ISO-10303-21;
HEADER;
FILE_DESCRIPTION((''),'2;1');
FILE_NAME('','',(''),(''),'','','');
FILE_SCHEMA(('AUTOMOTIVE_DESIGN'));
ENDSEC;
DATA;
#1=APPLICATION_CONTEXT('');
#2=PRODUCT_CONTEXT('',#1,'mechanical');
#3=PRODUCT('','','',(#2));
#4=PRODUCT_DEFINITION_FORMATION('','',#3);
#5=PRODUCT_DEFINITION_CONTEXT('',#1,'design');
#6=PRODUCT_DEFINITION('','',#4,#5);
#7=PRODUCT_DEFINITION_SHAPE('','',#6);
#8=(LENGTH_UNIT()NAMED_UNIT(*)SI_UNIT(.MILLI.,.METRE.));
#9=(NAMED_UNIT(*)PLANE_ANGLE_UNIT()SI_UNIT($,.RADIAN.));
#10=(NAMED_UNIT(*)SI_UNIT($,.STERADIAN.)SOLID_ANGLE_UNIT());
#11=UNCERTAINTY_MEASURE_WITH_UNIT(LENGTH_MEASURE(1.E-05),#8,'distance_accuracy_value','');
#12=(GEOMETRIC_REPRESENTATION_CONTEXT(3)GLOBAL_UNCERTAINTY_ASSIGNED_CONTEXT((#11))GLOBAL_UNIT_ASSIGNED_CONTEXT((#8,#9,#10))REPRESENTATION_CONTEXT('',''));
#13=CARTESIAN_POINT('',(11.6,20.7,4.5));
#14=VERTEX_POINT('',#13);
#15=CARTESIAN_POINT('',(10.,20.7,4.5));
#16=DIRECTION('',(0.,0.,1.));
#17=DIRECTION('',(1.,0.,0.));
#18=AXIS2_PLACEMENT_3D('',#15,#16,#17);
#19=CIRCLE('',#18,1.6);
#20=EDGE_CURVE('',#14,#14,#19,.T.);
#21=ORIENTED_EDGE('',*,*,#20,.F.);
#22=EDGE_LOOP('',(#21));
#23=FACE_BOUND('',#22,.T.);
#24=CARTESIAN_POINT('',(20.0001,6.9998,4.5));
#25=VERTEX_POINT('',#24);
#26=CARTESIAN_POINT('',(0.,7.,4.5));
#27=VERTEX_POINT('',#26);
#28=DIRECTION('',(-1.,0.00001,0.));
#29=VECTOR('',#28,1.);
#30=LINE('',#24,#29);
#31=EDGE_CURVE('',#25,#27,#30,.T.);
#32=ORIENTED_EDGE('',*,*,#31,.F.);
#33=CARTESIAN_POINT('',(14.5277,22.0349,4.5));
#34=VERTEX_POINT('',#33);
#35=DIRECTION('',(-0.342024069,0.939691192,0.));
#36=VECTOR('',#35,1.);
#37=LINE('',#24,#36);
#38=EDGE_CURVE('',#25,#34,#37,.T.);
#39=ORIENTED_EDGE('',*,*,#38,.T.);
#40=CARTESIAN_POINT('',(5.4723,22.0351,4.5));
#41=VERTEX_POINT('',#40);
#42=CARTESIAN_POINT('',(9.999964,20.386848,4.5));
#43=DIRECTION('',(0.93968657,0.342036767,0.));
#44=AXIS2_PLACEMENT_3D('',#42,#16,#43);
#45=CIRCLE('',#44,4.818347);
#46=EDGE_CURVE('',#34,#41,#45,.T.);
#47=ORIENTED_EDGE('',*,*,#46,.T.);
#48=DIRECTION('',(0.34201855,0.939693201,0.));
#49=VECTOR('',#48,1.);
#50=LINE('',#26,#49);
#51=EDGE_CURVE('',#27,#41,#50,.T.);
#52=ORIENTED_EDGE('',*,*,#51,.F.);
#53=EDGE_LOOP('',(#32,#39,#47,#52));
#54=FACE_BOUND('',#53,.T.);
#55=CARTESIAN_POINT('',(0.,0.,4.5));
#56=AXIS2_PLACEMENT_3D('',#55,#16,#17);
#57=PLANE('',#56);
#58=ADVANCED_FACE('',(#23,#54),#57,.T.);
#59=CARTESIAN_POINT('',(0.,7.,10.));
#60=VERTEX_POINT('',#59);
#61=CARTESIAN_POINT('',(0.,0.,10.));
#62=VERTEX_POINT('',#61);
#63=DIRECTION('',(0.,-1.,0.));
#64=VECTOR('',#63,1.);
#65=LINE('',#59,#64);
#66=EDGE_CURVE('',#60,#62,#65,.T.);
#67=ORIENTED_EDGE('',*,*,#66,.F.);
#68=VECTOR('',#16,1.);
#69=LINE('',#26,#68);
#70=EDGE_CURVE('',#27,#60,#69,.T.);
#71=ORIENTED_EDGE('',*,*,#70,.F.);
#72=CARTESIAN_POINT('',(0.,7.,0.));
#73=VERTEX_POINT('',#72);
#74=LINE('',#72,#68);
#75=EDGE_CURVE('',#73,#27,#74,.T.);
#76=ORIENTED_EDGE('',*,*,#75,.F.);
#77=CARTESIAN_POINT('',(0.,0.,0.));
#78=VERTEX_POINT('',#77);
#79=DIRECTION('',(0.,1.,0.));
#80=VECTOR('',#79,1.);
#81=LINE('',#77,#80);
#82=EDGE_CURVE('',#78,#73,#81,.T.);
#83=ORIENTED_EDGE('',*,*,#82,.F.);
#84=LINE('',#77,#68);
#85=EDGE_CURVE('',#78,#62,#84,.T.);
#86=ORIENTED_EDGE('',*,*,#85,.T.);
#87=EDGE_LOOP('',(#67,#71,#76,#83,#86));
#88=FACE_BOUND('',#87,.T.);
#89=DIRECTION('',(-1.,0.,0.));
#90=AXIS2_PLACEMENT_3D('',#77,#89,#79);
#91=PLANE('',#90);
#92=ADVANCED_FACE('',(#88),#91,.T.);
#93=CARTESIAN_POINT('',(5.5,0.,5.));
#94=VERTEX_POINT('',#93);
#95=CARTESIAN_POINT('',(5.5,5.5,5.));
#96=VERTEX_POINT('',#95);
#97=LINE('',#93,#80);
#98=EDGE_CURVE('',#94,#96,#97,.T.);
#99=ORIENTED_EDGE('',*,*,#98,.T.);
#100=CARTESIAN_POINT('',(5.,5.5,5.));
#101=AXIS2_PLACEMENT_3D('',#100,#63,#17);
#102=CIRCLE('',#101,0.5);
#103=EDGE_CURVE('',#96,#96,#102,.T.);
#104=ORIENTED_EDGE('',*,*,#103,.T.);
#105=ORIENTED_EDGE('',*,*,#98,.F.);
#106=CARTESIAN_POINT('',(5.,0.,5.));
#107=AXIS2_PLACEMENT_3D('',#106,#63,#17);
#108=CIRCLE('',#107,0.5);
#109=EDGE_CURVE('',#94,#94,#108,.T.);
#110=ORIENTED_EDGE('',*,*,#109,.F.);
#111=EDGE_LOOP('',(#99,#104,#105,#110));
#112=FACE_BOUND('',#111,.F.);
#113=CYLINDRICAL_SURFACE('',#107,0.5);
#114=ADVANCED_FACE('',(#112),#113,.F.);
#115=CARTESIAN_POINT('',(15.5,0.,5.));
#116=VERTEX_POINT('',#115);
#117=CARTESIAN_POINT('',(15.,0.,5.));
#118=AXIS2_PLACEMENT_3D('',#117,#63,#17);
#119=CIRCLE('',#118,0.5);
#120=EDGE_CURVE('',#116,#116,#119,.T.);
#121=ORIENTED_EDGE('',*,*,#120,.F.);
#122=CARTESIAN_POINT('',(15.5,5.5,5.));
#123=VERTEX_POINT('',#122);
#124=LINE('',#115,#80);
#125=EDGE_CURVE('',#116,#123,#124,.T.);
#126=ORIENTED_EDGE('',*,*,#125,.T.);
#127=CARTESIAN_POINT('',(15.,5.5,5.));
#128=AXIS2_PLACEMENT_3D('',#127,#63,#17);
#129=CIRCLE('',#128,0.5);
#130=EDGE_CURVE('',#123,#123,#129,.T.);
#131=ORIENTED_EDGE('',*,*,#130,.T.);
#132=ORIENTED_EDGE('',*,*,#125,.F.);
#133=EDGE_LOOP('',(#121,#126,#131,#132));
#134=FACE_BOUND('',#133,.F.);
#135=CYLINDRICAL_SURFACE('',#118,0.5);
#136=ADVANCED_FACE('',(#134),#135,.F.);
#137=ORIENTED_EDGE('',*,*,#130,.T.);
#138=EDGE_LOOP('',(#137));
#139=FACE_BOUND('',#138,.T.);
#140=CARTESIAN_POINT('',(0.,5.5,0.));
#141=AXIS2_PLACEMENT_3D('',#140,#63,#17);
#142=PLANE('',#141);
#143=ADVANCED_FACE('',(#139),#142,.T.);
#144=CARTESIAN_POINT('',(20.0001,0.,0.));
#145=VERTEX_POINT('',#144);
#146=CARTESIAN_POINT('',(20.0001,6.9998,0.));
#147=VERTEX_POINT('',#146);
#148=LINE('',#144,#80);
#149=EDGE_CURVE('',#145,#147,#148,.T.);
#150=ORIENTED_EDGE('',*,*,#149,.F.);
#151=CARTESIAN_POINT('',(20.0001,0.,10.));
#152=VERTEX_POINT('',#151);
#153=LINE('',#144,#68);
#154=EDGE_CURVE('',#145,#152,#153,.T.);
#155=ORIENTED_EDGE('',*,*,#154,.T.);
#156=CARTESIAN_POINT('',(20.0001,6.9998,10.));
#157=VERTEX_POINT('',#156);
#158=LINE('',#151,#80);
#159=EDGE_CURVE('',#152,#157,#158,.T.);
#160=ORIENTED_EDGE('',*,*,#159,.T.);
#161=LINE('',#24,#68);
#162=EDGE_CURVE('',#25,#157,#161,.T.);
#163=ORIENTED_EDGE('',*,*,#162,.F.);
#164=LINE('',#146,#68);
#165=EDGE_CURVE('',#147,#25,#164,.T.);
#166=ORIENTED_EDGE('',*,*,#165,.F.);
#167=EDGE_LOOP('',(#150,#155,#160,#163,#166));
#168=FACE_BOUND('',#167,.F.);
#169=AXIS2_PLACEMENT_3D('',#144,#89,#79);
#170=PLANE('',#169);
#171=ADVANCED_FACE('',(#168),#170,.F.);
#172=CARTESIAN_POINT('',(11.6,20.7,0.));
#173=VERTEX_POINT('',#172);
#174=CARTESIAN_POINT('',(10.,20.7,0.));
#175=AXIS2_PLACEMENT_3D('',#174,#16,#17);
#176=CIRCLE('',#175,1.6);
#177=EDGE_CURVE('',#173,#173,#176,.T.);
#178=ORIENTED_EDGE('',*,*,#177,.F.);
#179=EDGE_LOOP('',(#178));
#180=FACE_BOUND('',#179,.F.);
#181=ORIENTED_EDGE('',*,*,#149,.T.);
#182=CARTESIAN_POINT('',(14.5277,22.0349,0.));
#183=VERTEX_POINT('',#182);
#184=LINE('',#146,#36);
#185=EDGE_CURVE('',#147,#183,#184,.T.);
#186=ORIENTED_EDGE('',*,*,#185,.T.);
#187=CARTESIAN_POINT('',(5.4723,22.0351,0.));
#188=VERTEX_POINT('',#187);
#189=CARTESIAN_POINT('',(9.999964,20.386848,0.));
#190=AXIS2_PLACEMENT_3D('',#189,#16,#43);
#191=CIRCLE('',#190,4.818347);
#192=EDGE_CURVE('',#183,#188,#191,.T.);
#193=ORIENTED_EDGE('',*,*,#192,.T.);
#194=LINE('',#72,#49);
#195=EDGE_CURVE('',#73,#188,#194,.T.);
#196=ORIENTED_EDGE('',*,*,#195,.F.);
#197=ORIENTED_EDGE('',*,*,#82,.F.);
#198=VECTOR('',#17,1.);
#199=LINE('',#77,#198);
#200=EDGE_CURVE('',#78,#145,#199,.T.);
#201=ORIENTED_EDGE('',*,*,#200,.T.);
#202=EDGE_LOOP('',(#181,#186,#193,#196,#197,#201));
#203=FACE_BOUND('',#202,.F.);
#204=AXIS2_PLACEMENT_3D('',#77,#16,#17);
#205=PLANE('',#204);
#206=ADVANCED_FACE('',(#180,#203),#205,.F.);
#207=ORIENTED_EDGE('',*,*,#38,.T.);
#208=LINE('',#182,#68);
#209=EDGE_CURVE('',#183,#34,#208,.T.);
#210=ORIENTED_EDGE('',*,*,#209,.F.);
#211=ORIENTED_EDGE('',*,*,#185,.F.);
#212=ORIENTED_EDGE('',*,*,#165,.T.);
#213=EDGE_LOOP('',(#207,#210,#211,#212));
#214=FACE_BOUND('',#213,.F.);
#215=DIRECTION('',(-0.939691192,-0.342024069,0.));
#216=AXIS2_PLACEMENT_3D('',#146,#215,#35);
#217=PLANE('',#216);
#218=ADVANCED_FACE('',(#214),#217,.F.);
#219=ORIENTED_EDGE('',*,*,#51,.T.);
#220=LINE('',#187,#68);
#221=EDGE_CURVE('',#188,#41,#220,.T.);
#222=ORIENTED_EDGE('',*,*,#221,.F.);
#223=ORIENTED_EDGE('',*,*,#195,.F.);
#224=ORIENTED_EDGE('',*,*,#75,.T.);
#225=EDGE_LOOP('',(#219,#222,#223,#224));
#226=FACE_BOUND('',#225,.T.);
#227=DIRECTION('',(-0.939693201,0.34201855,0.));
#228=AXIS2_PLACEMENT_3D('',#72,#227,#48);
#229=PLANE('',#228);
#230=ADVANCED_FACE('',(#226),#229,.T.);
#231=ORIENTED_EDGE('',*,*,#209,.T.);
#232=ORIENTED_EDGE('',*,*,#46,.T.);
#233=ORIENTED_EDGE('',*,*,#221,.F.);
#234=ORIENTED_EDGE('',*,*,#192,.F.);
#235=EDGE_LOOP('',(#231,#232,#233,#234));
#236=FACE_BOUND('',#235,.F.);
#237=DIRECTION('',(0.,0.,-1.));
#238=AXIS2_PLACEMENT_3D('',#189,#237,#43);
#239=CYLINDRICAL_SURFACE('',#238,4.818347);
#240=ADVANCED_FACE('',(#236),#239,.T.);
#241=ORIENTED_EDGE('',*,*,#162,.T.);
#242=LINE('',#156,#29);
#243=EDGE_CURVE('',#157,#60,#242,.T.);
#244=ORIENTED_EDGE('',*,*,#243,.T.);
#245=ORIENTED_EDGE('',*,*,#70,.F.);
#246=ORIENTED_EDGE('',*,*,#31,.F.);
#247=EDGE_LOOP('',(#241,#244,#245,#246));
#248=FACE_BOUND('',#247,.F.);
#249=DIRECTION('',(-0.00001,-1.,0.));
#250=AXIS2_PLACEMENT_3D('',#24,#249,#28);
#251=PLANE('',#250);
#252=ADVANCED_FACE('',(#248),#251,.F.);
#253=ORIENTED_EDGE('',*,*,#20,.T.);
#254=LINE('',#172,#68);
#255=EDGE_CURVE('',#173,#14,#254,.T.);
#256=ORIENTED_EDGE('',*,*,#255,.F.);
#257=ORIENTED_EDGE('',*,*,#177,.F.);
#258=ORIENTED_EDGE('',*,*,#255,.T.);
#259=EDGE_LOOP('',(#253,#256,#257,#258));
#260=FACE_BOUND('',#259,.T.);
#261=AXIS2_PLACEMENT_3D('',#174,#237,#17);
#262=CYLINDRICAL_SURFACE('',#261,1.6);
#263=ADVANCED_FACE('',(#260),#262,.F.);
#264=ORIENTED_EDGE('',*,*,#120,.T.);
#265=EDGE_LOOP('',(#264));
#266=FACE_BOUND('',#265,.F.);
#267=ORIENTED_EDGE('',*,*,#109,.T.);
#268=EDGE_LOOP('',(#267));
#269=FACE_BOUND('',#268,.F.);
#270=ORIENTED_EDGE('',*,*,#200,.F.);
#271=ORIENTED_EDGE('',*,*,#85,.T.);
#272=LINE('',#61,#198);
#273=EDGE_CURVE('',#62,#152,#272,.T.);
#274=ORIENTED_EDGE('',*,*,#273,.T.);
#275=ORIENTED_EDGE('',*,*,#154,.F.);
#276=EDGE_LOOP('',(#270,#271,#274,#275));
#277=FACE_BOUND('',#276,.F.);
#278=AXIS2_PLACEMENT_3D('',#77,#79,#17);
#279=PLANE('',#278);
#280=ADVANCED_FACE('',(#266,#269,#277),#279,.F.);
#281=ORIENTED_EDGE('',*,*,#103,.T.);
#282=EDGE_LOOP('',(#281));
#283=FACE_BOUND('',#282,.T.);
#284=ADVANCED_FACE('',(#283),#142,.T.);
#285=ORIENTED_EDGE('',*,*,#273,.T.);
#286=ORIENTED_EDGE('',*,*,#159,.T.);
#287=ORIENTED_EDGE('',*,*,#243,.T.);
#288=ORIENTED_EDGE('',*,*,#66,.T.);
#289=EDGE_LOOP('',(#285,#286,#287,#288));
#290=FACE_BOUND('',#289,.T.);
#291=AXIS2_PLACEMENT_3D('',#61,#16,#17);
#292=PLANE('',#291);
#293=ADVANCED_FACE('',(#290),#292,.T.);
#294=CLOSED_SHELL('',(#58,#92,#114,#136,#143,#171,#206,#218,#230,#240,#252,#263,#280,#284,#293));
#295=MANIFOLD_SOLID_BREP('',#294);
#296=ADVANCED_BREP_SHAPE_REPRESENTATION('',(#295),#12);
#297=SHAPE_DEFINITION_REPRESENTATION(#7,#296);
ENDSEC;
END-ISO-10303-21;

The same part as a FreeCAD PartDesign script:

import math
import FreeCAD as App
import Part
import Sketcher
Q = App.Units.Quantity


def add_polygon(sketch, points):
    """Adds a closed chain of lines whose ends are joined by coincident constraints."""
    first, n = sketch.GeometryCount, len(points)
    for a, b in zip(points, points[1:] + points[:1]):
        sketch.addGeometry(Part.LineSegment(App.Vector(*a, 0), App.Vector(*b, 0)), False)
    for i in range(n):
        sketch.addConstraint(Sketcher.Constraint("Coincident", first + i, 2, first + (i + 1) % n, 1))

doc = App.newDocument("Part")
body = doc.addObject("PartDesign::Body", "Body")

sketch1 = doc.addObject("Sketcher::SketchObject", "Sketch")
body.addObject(sketch1)
sketch1.AttachmentSupport = (doc.XY_Plane, [""])
sketch1.MapMode = "FlatFace"
sketch1.addGeometry([
    Part.LineSegment(App.Vector(0, 7, 0), App.Vector(0, 0, 0)),
    Part.LineSegment(App.Vector(0, 0, 0), App.Vector(20, 0, 0)),
    Part.LineSegment(App.Vector(20, 0, 0), App.Vector(20, 7, 0)),
    Part.LineSegment(App.Vector(20, 7, 0), App.Vector(14.5, 22, 0)),
    Part.ArcOfCircle(Part.Circle(App.Vector(10, 20.4, 0), App.Vector(0, 0, 1), 4.8), math.radians(20), math.radians(160)),
    Part.LineSegment(App.Vector(5.5, 22, 0), App.Vector(0, 7, 0)),
    Part.Circle(App.Vector(10, 20.7, 0), App.Vector(0, 0, 1), 1.6),
], False)
sketch1.addConstraint([
    Sketcher.Constraint("Coincident", 0, 2, 1, 1),
    Sketcher.Constraint("Coincident", 1, 2, 2, 1),
    Sketcher.Constraint("Coincident", 2, 2, 3, 1),
    Sketcher.Constraint("Tangent", 3, 2, 4, 1),
    Sketcher.Constraint("Tangent", 4, 2, 5, 1),
    Sketcher.Constraint("Coincident", 5, 2, 0, 1),
    Sketcher.Constraint("Vertical", 0),
    Sketcher.Constraint("Horizontal", 1),
    Sketcher.Constraint("Vertical", 2),
    Sketcher.Constraint("Coincident", 0, 2, -1, 1),
    Sketcher.Constraint("Horizontal", 3, 2, 4, 2),
    Sketcher.Constraint("Vertical", 4, 3, 6, 3),
    Sketcher.Constraint("Equal", 3, 5),
    Sketcher.Constraint("DistanceY", 0, 2, 0, 1, Q("7 mm")),
    Sketcher.Constraint("Angle", 3, Q("110.0002 deg")),
    Sketcher.Constraint("Distance", 3, Q("16 mm")),
    Sketcher.Constraint("DistanceX", -1, 1, 4, 3, Q("10 mm")),
    Sketcher.Constraint("Diameter", 6, Q("3.2 mm")),
    Sketcher.Constraint("DistanceY", -1, 1, 6, 3, Q("20.7 mm")),
])
pad1 = doc.addObject("PartDesign::Pad", "Pad")
body.addObject(pad1)
pad1.Profile = sketch1
pad1.Length = 4.5

sketch2 = doc.addObject("Sketcher::SketchObject", "Sketch001")
body.addObject(sketch2)
sketch2.AttachmentSupport = (doc.XY_Plane, [""])
sketch2.MapMode = "FlatFace"
sketch2.AttachmentOffset = App.Placement(App.Vector(0, 0, 4.5), App.Rotation())
add_polygon(sketch2, [(20, 7), (0, 7), (0, 0), (20, 0)])
sketch2.addConstraint([
    Sketcher.Constraint("Vertical", 1),
    Sketcher.Constraint("Horizontal", 2),
    Sketcher.Constraint("Vertical", 3),
    Sketcher.Constraint("Coincident", 1, 2, -1, 1),
    Sketcher.Constraint("DistanceX", 2, 1, 2, 2, Q("20 mm")),
    Sketcher.Constraint("DistanceY", 1, 2, 1, 1, Q("7 mm")),
    Sketcher.Constraint("Angle", 0, Q("179.9994 deg")),
])
pad2 = doc.addObject("PartDesign::Pad", "Pad001")
body.addObject(pad2)
pad2.Profile = sketch2
pad2.Length = 5.5

sketch3 = doc.addObject("Sketcher::SketchObject", "Sketch002")
body.addObject(sketch3)
sketch3.AttachmentSupport = (doc.XZ_Plane, [""])
sketch3.MapMode = "FlatFace"
sketch3.addGeometry([
    Part.Circle(App.Vector(5, 5, 0), App.Vector(0, 0, 1), 0.5),
    Part.Circle(App.Vector(15, 5, 0), App.Vector(0, 0, 1), 0.5),
], False)
sketch3.addConstraint([
    Sketcher.Constraint("Equal", 0, 1),
    Sketcher.Constraint("Horizontal", 0, 3, 1, 3),
    Sketcher.Constraint("Diameter", 0, Q("1 mm")),
    Sketcher.Constraint("DistanceX", -1, 1, 0, 3, Q("5 mm")),
    Sketcher.Constraint("DistanceY", -1, 1, 0, 3, Q("5 mm")),
    Sketcher.Constraint("DistanceX", -1, 1, 1, 3, Q("15 mm")),
])
pocket1 = doc.addObject("PartDesign::Pocket", "Pocket")
body.addObject(pocket1)
pocket1.Profile = sketch3
pocket1.Length = 5.5

doc.recompute()
